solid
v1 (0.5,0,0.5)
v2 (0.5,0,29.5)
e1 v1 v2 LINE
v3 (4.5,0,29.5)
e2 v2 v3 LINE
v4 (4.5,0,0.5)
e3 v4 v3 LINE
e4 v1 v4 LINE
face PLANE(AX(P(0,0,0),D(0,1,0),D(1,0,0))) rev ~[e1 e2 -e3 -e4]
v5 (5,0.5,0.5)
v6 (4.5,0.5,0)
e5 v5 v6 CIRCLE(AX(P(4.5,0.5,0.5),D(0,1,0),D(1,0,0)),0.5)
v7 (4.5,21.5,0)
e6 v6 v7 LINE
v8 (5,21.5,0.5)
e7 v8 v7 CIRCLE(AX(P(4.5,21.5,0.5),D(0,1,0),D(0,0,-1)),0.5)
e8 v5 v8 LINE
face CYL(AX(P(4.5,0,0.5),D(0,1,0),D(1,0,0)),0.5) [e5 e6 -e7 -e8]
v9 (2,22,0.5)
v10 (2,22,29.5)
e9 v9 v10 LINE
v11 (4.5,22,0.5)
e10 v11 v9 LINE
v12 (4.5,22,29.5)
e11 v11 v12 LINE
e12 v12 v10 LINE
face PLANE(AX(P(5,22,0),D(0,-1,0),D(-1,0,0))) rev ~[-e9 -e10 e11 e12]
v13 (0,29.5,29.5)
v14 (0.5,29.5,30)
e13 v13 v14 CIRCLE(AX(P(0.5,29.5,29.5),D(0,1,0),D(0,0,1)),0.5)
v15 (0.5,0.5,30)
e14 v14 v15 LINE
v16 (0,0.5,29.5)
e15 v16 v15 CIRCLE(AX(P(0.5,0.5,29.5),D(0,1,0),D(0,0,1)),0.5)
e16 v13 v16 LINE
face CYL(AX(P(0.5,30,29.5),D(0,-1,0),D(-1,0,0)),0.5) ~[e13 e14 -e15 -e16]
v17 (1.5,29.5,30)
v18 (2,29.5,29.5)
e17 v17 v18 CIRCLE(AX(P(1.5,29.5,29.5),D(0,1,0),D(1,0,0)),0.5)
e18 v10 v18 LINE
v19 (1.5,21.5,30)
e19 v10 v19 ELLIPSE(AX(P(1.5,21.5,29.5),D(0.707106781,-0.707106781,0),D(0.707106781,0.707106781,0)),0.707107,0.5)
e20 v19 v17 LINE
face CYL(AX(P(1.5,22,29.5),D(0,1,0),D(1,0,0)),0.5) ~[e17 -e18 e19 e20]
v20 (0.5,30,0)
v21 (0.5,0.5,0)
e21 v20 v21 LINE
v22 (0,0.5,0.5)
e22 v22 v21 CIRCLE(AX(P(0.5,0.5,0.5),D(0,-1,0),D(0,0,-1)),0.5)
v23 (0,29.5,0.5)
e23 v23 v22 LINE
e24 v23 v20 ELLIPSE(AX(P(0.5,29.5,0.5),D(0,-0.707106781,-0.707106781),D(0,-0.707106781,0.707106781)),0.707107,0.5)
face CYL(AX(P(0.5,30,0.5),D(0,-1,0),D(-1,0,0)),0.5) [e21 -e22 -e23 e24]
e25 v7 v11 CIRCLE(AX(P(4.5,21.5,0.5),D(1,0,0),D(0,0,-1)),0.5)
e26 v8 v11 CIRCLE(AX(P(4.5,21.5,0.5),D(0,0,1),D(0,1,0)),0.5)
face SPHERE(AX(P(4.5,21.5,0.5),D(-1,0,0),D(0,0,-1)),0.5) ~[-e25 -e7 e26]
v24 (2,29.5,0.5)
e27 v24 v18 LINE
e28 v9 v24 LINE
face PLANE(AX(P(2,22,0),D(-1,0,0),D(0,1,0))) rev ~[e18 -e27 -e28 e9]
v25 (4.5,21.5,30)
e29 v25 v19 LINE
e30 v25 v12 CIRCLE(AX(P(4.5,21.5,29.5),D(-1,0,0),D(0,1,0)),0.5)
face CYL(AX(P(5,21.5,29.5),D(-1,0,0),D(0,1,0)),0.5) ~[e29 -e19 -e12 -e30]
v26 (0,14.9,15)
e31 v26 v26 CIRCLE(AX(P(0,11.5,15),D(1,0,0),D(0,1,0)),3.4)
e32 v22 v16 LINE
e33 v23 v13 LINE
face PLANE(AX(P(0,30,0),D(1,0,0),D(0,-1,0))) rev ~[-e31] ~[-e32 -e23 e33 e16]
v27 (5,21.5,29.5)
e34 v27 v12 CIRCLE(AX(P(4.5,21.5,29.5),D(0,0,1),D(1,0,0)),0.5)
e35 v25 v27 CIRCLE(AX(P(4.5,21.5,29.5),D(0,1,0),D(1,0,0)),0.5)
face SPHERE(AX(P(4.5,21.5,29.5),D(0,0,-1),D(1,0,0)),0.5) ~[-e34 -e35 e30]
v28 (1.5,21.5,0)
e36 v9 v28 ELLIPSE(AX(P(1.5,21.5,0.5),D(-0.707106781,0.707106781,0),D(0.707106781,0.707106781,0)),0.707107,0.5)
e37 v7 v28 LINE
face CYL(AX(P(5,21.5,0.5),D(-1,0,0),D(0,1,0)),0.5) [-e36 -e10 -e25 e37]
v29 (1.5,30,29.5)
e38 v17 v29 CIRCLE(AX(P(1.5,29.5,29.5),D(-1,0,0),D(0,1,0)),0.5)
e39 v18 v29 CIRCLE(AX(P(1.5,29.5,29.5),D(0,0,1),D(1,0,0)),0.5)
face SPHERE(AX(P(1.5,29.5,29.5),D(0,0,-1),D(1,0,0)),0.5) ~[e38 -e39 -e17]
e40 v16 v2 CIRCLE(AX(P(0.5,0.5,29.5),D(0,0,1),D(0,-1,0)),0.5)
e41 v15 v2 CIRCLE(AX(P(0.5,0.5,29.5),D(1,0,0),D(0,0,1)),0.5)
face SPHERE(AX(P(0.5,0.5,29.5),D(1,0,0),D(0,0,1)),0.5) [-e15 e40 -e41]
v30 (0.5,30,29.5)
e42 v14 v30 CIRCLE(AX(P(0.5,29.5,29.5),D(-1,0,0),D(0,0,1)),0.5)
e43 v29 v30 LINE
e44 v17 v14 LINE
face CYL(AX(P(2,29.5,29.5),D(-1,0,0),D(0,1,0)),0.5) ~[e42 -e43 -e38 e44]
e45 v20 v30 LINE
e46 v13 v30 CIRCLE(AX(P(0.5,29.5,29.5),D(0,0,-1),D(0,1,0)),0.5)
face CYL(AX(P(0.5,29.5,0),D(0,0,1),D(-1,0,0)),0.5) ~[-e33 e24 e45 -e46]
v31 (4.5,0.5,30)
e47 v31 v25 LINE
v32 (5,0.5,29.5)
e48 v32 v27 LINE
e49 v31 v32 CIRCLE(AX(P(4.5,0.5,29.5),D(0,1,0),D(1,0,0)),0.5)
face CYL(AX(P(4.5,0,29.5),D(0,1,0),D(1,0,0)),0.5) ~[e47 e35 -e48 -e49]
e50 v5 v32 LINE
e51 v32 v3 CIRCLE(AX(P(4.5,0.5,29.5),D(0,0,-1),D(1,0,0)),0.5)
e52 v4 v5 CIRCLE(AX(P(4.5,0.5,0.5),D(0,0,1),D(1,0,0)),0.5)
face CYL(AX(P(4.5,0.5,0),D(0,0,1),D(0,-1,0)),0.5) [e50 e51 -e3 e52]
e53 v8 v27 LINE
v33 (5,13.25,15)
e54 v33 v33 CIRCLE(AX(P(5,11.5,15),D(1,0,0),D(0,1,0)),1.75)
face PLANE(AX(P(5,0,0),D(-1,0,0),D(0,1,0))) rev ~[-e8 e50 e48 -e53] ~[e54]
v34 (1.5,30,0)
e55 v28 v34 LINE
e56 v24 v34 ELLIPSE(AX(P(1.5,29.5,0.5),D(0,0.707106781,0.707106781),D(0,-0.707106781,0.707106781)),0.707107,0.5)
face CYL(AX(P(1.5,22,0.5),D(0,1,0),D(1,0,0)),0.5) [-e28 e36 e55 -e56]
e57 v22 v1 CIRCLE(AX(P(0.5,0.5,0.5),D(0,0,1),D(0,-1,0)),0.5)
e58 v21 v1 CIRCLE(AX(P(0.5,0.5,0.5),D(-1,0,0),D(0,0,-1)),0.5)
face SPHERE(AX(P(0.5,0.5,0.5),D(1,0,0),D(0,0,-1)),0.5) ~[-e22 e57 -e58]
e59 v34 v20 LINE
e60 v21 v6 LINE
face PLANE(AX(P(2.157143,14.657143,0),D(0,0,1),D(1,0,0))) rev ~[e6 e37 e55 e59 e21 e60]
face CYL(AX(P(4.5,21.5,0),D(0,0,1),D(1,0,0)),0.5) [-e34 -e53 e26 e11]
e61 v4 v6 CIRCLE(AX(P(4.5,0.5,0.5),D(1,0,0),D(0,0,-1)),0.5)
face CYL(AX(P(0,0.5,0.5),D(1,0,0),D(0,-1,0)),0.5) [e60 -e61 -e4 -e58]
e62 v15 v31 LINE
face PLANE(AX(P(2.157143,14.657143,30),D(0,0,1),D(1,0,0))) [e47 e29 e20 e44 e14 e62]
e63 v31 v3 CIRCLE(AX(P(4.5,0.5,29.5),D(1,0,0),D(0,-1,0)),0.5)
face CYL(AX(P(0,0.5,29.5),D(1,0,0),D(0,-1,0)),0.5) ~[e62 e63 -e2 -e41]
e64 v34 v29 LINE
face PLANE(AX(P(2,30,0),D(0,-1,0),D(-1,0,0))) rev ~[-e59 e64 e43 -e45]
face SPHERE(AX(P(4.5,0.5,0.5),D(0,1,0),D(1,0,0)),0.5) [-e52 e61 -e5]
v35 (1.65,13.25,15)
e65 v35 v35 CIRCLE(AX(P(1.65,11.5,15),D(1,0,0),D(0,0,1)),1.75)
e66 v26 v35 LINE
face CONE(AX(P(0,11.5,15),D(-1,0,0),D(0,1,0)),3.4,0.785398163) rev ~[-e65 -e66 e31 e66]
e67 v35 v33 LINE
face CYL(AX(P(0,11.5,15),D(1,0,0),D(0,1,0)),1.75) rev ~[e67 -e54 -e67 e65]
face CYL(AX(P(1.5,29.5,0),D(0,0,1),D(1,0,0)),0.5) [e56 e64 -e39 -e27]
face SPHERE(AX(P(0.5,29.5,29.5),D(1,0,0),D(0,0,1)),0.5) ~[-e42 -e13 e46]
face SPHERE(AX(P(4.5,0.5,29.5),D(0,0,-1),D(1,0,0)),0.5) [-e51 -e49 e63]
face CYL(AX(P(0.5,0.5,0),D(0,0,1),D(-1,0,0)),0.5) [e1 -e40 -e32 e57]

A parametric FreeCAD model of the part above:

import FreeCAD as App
import Part
import Sketcher


def edges_at(feature, points):
    """Names of the edges that pass closest to the given points."""
    edges = feature.Shape.Edges
    near = lambda p: min(range(len(edges)), key=lambda i: edges[i].distToShape(Part.Vertex(*p))[0])
    return sorted({f"Edge{near(p) + 1}" for p in points})


def add_polygon(sketch, points):
    """Adds a closed chain of lines whose ends are joined by coincident constraints."""
    first, n = sketch.GeometryCount, len(points)
    for a, b in zip(points, points[1:] + points[:1]):
        sketch.addGeometry(Part.LineSegment(App.Vector(*a, 0), App.Vector(*b, 0)), False)
    for i in range(n):
        sketch.addConstraint(Sketcher.Constraint("Coincident", first + i, 2, first + (i + 1) % n, 1))

doc = App.newDocument("Part")
body = doc.addObject("PartDesign::Body", "Body")

# Sketch on XY plane
sketch1 = body.newObject("Sketcher::SketchObject", "Sketch")
sketch1.AttachmentSupport = (doc.getObject("XY_Plane"), [""])
sketch1.MapMode = "FlatFace"
add_polygon(sketch1, [(0, 30), (0, 0), (5, 0), (5, 22), (2, 22), (2, 30)])  # lines 0-5
sketch1.addConstraint([
    Sketcher.Constraint("Vertical", 0),
    Sketcher.Constraint("Horizontal", 1),
    Sketcher.Constraint("Vertical", 2),
    Sketcher.Constraint("Horizontal", 3),
    Sketcher.Constraint("Vertical", 4),
    Sketcher.Constraint("Horizontal", 5),
    Sketcher.Constraint("Coincident", 0, 2, -1, 1),
    Sketcher.Constraint("DistanceX", 1, 1, 1, 2, 5.0),
    Sketcher.Constraint("DistanceX", 3, 2, 3, 1, 3.0),
    Sketcher.Constraint("DistanceY", 0, 2, 0, 1, 30.0),
    Sketcher.Constraint("DistanceY", 2, 1, 2, 2, 22.0),
])
pad1 = body.newObject("PartDesign::Pad", "Pad")
pad1.Profile = sketch1
pad1.Length = 30
doc.recompute()

fillet = body.newObject("PartDesign::Fillet", "Fillet")
fillet.Base = (pad1, edges_at(pad1, [
    (2, 30, 15),
    (2, 26, 0),
    (3.5, 22, 0),
    (5, 11, 0),
    (5, 0, 15),
    (2, 26, 30),
    (5, 22, 15),
    (5, 11, 30),
    (3.5, 22, 30),
    (1, 30, 30),
    (2.5, 0, 30),
    (2.5, 0, 0),
    (0, 15, 0),
    (0, 15, 30),
    (0, 30, 15),
    (0, 0, 15),
]))
fillet.Radius = 0.5

# Sketch on YZ plane
sketch2 = body.newObject("Sketcher::SketchObject", "Sketch001")
sketch2.AttachmentSupport = (doc.getObject("YZ_Plane"), [""])
sketch2.MapMode = "FlatFace"
sketch2.addGeometry(Part.Circle(App.Vector(11.5, 15, 0), App.Vector(0, 0, 1), 1.75), False)
sketch2.addConstraint([
    Sketcher.Constraint("Diameter", 0, 3.5),
    Sketcher.Constraint("DistanceY", -1, 1, 0, 3, 15.0),
    Sketcher.Constraint("DistanceX", -1, 1, 0, 3, 11.5),
])
doc.recompute()
hole = body.newObject("PartDesign::Hole", "Hole")
hole.Profile = sketch2
hole.ThreadType = "None"
hole.Diameter = 3.5
hole.DepthType = "ThroughAll"
hole.HoleCutType = "Countersink"
hole.HoleCutDiameter = 6.8
hole.HoleCutCountersinkAngle = 90
hole.Reversed = True

doc.recompute()
